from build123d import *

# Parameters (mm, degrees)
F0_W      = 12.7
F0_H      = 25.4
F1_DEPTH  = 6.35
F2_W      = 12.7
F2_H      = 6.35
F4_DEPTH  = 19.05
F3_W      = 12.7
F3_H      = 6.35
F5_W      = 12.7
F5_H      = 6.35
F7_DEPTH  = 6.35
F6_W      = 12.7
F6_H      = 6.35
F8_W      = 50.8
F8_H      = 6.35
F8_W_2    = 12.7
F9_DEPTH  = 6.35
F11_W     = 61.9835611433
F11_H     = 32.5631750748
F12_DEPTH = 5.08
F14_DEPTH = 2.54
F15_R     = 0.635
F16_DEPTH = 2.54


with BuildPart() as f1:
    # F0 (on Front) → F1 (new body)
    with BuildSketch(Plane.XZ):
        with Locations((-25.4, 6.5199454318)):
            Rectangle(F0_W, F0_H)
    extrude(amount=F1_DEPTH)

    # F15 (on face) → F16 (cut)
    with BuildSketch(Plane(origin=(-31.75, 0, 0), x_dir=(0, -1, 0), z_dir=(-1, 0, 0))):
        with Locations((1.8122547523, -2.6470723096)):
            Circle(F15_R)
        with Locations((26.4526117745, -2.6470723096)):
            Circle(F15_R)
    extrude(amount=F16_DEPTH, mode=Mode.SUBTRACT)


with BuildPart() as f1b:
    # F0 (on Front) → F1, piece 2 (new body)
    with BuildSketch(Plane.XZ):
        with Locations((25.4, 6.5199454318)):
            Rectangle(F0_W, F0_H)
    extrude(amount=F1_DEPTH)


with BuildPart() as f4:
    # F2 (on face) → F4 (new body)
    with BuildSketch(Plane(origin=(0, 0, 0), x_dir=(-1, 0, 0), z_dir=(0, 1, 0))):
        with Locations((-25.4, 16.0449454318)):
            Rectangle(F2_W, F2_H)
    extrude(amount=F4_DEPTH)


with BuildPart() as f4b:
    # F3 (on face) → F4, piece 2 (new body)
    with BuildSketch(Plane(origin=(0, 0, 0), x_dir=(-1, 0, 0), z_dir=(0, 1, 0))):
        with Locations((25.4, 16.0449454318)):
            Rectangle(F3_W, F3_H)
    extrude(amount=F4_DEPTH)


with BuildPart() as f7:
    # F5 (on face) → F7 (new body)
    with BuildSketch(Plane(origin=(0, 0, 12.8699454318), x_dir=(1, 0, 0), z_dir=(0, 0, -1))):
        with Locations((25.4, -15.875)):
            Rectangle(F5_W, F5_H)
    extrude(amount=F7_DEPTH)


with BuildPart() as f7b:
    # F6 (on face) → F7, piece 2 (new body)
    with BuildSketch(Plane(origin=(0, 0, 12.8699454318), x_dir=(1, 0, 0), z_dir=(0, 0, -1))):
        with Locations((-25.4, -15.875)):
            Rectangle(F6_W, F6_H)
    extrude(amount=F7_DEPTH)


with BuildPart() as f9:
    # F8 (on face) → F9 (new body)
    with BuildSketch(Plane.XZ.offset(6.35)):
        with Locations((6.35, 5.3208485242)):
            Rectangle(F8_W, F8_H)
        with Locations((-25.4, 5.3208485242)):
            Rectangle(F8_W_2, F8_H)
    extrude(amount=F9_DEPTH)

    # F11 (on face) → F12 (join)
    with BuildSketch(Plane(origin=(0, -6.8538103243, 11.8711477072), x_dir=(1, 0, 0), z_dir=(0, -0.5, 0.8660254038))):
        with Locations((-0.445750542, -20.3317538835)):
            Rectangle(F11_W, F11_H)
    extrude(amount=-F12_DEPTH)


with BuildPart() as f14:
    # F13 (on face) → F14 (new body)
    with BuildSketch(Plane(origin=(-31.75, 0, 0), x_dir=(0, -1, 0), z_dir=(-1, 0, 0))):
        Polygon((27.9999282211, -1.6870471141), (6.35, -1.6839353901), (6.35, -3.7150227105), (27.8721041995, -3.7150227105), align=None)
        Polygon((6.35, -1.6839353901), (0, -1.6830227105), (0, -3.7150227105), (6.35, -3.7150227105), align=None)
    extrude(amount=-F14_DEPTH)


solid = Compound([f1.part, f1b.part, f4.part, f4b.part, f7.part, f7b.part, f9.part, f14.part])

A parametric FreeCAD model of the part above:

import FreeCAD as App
import Part
import Sketcher
Q = App.Units.Quantity


def add_polygon(sketch, points):
    """Adds a closed chain of lines whose ends are joined by coincident constraints."""
    first, n = sketch.GeometryCount, len(points)
    for a, b in zip(points, points[1:] + points[:1]):
        sketch.addGeometry(Part.LineSegment(App.Vector(*a, 0), App.Vector(*b, 0)), False)
    for i in range(n):
        sketch.addConstraint(Sketcher.Constraint("Coincident", first + i, 2, first + (i + 1) % n, 1))

doc = App.newDocument("Part")
body = doc.addObject("PartDesign::Body", "Body")

# Sketch on XZ plane
sketch1 = body.newObject("Sketcher::SketchObject", "Sketch")
sketch1.AttachmentSupport = (doc.getObject("XZ_Plane"), [""])
sketch1.MapMode = "FlatFace"
add_polygon(sketch1, [(-31.75, 19.219945), (-31.75, -6.180055), (-19.05, -6.180055), (-19.05, 19.219945)])  # lines 0-3
sketch1.addConstraint([
    Sketcher.Constraint("Vertical", 0),
    Sketcher.Constraint("Horizontal", 1),
    Sketcher.Constraint("Vertical", 2),
    Sketcher.Constraint("Horizontal", 3),
    Sketcher.Constraint("DistanceY", 0, 2, 0, 1, Q("1 in")),
    Sketcher.Constraint("DistanceX", 1, 1, 1, 2, Q("0.5 in")),
    Sketcher.Constraint("DistanceX", 0, 2, -1, 1, Q("1.25 in")),
    Sketcher.Constraint("DistanceY", 0, 2, -1, 1, Q("6.180055 mm")),
])
pad1 = body.newObject("PartDesign::Pad", "Pad")
pad1.Profile = sketch1
pad1.Length = Q("0.25 in")

# Sketch on YZ plane
sketch2 = body.newObject("Sketcher::SketchObject", "Sketch001")
sketch2.AttachmentSupport = (doc.getObject("YZ_Plane"), [""])
sketch2.MapMode = "FlatFace"
sketch2.AttachmentOffset = App.Placement(App.Vector(0, 0, -1.25 * 25.4), App.Rotation())
sketch2.addGeometry([
    Part.Circle(App.Vector(-1.812255, -2.647072, 0), App.Vector(0, 0, 1), 0.635),
    Part.Circle(App.Vector(-26.452612, -2.647072, 0), App.Vector(0, 0, 1), 0.635),
], False)
sketch2.addConstraint([
    Sketcher.Constraint("Equal", 0, 1),
    Sketcher.Constraint("Horizontal", 0, 3, 1, 3),
    Sketcher.Constraint("Diameter", 0, Q("0.05 in")),
    Sketcher.Constraint("DistanceX", 1, 3, -1, 1, Q("26.452612 mm")),
    Sketcher.Constraint("DistanceX", 0, 3, -1, 1, Q("1.812255 mm")),
    Sketcher.Constraint("DistanceY", 0, 3, -1, 1, Q("2.647072 mm")),
])
pocket1 = body.newObject("PartDesign::Pocket", "Pocket")
pocket1.Profile = sketch2
pocket1.Length = Q("0.1 in")
body2 = doc.addObject("PartDesign::Body", "Body001")

# Sketch on XZ plane
sketch3 = body2.newObject("Sketcher::SketchObject", "Sketch002")
sketch3.AttachmentSupport = (doc.getObject("XZ_Plane001"), [""])
sketch3.MapMode = "FlatFace"
add_polygon(sketch3, [(19.05, 19.219945), (19.05, -6.180055), (31.75, -6.180055), (31.75, 19.219945)])  # lines 0-3
sketch3.addConstraint([
    Sketcher.Constraint("Vertical", 0),
    Sketcher.Constraint("Horizontal", 1),
    Sketcher.Constraint("Vertical", 2),
    Sketcher.Constraint("Horizontal", 3),
    Sketcher.Constraint("DistanceY", 0, 2, 0, 1, Q("1 in")),
    Sketcher.Constraint("DistanceX", 1, 1, 1, 2, Q("0.5 in")),
    Sketcher.Constraint("DistanceX", -1, 1, 0, 2, Q("0.75 in")),
    Sketcher.Constraint("DistanceY", 0, 2, -1, 1, Q("6.180055 mm")),
])
pad2 = body2.newObject("PartDesign::Pad", "Pad001")
pad2.Profile = sketch3
pad2.Length = Q("0.25 in")
body3 = doc.addObject("PartDesign::Body", "Body002")

# Sketch on XZ plane
sketch4 = body3.newObject("Sketcher::SketchObject", "Sketch003")
sketch4.AttachmentSupport = (doc.getObject("XZ_Plane002"), [""])
sketch4.MapMode = "FlatFace"
add_polygon(sketch4, [(31.75, 19.219945), (31.75, 12.869945), (19.05, 12.869945), (19.05, 19.219945)])  # lines 0-3
sketch4.addConstraint([
    Sketcher.Constraint("Vertical", 0),
    Sketcher.Constraint("Horizontal", 1),
    Sketcher.Constraint("Vertical", 2),
    Sketcher.Constraint("Horizontal", 3),
    Sketcher.Constraint("DistanceX", 1, 2, 1, 1, Q("0.5 in")),
    Sketcher.Constraint("DistanceY", 0, 2, 0, 1, Q("0.25 in")),
    Sketcher.Constraint("DistanceX", -1, 1, 0, 2, Q("1.25 in")),
    Sketcher.Constraint("DistanceY", -1, 1, 0, 2, Q("12.869945 mm")),
])
pad3 = body3.newObject("PartDesign::Pad", "Pad002")
pad3.Profile = sketch4
pad3.Length = Q("0.75 in")
pad3.Reversed = True
body4 = doc.addObject("PartDesign::Body", "Body003")

# Sketch on XZ plane
sketch5 = body4.newObject("Sketcher::SketchObject", "Sketch004")
sketch5.AttachmentSupport = (doc.getObject("XZ_Plane003"), [""])
sketch5.MapMode = "FlatFace"
add_polygon(sketch5, [(-19.05, 19.219945), (-19.05, 12.869945), (-31.75, 12.869945), (-31.75, 19.219945)])  # lines 0-3
sketch5.addConstraint([
    Sketcher.Constraint("Vertical", 0),
    Sketcher.Constraint("Horizontal", 1),
    Sketcher.Constraint("Vertical", 2),
    Sketcher.Constraint("Horizontal", 3),
    Sketcher.Constraint("DistanceX", 1, 2, 1, 1, Q("0.5 in")),
    Sketcher.Constraint("DistanceY", 0, 2, 0, 1, Q("0.25 in")),
    Sketcher.Constraint("DistanceX", 0, 2, -1, 1, Q("0.75 in")),
    Sketcher.Constraint("DistanceY", -1, 1, 0, 2, Q("12.869945 mm")),
])
pad4 = body4.newObject("PartDesign::Pad", "Pad003")
pad4.Profile = sketch5
pad4.Length = Q("0.75 in")
pad4.Reversed = True
body5 = doc.addObject("PartDesign::Body", "Body004")

# Sketch on XY plane
sketch6 = body5.newObject("Sketcher::SketchObject", "Sketch005")
sketch6.AttachmentSupport = (doc.getObject("XY_Plane004"), [""])
sketch6.MapMode = "FlatFace"
sketch6.AttachmentOffset = App.Placement(App.Vector(0, 0, 12.869945), App.Rotation())
add_polygon(sketch6, [(19.05, 12.7), (19.05, 19.05), (31.75, 19.05), (31.75, 12.7)])  # lines 0-3
sketch6.addConstraint([
    Sketcher.Constraint("Vertical", 0),
    Sketcher.Constraint("Horizontal", 1),
    Sketcher.Constraint("Vertical", 2),
    Sketcher.Constraint("Horizontal", 3),
    Sketcher.Constraint("DistanceX", 1, 1, 1, 2, Q("0.5 in")),
    Sketcher.Constraint("DistanceY", 0, 1, 0, 2, Q("0.25 in")),
    Sketcher.Constraint("DistanceY", -1, 1, 2, 2, Q("0.5 in")),
    Sketcher.Constraint("DistanceX", -1, 1, 0, 2, Q("0.75 in")),
])
pad5 = body5.newObject("PartDesign::Pad", "Pad004")
pad5.Profile = sketch6
pad5.Length = Q("0.25 in")
pad5.Reversed = True
body6 = doc.addObject("PartDesign::Body", "Body005")

# Sketch on XY plane
sketch7 = body6.newObject("Sketcher::SketchObject", "Sketch006")
sketch7.AttachmentSupport = (doc.getObject("XY_Plane005"), [""])
sketch7.MapMode = "FlatFace"
sketch7.AttachmentOffset = App.Placement(App.Vector(0, 0, 12.869945), App.Rotation())
add_polygon(sketch7, [(-31.75, 12.7), (-31.75, 19.05), (-19.05, 19.05), (-19.05, 12.7)])  # lines 0-3
sketch7.addConstraint([
    Sketcher.Constraint("Vertical", 0),
    Sketcher.Constraint("Horizontal", 1),
    Sketcher.Constraint("Vertical", 2),
    Sketcher.Constraint("Horizontal", 3),
    Sketcher.Constraint("DistanceX", 1, 1, 1, 2, Q("0.5 in")),
    Sketcher.Constraint("DistanceY", 0, 1, 0, 2, Q("0.25 in")),
    Sketcher.Constraint("DistanceY", -1, 1, 2, 2, Q("0.5 in")),
    Sketcher.Constraint("DistanceX", 0, 2, -1, 1, Q("1.25 in")),
])
pad6 = body6.newObject("PartDesign::Pad", "Pad005")
pad6.Profile = sketch7
pad6.Length = Q("0.25 in")
pad6.Reversed = True
body7 = doc.addObject("PartDesign::Body", "Body006")

# Sketch on XZ plane
sketch8 = body7.newObject("Sketcher::SketchObject", "Sketch007")
sketch8.AttachmentSupport = (doc.getObject("XZ_Plane006"), [""])
sketch8.MapMode = "FlatFace"
sketch8.AttachmentOffset = App.Placement(App.Vector(0, 0, 0.25 * 25.4), App.Rotation())
add_polygon(sketch8, [(31.75, 2.145849), (31.75, 8.495849), (-31.75, 8.495849), (-31.75, 2.145849)])  # lines 0-3
sketch8.addConstraint([
    Sketcher.Constraint("Vertical", 0),
    Sketcher.Constraint("Horizontal", 1),
    Sketcher.Constraint("Vertical", 2),
    Sketcher.Constraint("Horizontal", 3),
    Sketcher.Constraint("DistanceX", 1, 2, 1, 1, Q("2.5 in")),
    Sketcher.Constraint("DistanceY", 0, 1, 0, 2, Q("0.25 in")),
    Sketcher.Constraint("DistanceX", -1, 1, 0, 2, Q("1.25 in")),
    Sketcher.Constraint("DistanceY", -1, 1, 0, 2, Q("8.495849 mm")),
])
pad7 = body7.newObject("PartDesign::Pad", "Pad006")
pad7.Profile = sketch8
pad7.Length = Q("0.25 in")

# Sketch on an angled plane
sketch9 = body7.newObject("Sketcher::SketchObject", "Sketch008")
sketch9.Placement = App.Placement(App.Vector(0, -6.85381, 11.871148), App.Rotation(App.Vector(1, 0, 0), App.Vector(0, 0.866025404, 0.5), App.Vector(0, -0.5, 0.866025404), "ZXY"))
add_polygon(sketch9, [(-31.437531, -4.050166), (-31.437531, -36.613341), (30.54603, -36.613341), (30.54603, -4.050166)])  # lines 0-3
sketch9.addConstraint([
    Sketcher.Constraint("Vertical", 0),
    Sketcher.Constraint("Horizontal", 1),
    Sketcher.Constraint("Vertical", 2),
    Sketcher.Constraint("Horizontal", 3),
    Sketcher.Constraint("DistanceX", 1, 1, 1, 2, Q("61.983561 mm")),
    Sketcher.Constraint("DistanceY", 0, 2, 0, 1, Q("32.563175 mm")),
    Sketcher.Constraint("DistanceX", 0, 2, -1, 1, Q("31.437531 mm")),
    Sketcher.Constraint("DistanceY", 0, 2, -1, 1, Q("36.613341 mm")),
])
pad8 = body7.newObject("PartDesign::Pad", "Pad007")
pad8.Profile = sketch9
pad8.Length = Q("0.2 in")
pad8.Reversed = True
body8 = doc.addObject("PartDesign::Body", "Body007")

# Sketch on YZ plane
sketch10 = body8.newObject("Sketcher::SketchObject", "Sketch009")
sketch10.AttachmentSupport = (doc.getObject("YZ_Plane007"), [""])
sketch10.MapMode = "FlatFace"
sketch10.AttachmentOffset = App.Placement(App.Vector(0, 0, -1.25 * 25.4), App.Rotation())
add_polygon(sketch10, [(-27.999928, -1.687047), (-6.35, -1.683935), (0, -1.683023), (0, -3.715023), (-27.872104, -3.715023)])  # lines 0-4
sketch10.addConstraint([
    Sketcher.Constraint("Vertical", 2),
    Sketcher.Constraint("Horizontal", 3),
    Sketcher.Constraint("PointOnObject", 1, 2, -2),
    Sketcher.Constraint("Parallel", 0, 1),
    Sketcher.Constraint("DistanceY", 2, 2, 2, 1, Q("0.08 in")),
    Sketcher.Constraint("Distance", 1, Q("0.25 in")),
    Sketcher.Constraint("Distance", 4, Q("0.08 in")),
    Sketcher.Constraint("Distance", 0, Q("21.649928 mm")),
    Sketcher.Constraint("DistanceX", 3, 2, 3, 1, Q("27.872104 mm")),
    Sketcher.Constraint("DistanceY", 0, 2, -1, 1, Q("1.683935 mm")),
])
pad9 = body8.newObject("PartDesign::Pad", "Pad008")
pad9.Profile = sketch10
pad9.Length = Q("0.1 in")

doc.recompute()
